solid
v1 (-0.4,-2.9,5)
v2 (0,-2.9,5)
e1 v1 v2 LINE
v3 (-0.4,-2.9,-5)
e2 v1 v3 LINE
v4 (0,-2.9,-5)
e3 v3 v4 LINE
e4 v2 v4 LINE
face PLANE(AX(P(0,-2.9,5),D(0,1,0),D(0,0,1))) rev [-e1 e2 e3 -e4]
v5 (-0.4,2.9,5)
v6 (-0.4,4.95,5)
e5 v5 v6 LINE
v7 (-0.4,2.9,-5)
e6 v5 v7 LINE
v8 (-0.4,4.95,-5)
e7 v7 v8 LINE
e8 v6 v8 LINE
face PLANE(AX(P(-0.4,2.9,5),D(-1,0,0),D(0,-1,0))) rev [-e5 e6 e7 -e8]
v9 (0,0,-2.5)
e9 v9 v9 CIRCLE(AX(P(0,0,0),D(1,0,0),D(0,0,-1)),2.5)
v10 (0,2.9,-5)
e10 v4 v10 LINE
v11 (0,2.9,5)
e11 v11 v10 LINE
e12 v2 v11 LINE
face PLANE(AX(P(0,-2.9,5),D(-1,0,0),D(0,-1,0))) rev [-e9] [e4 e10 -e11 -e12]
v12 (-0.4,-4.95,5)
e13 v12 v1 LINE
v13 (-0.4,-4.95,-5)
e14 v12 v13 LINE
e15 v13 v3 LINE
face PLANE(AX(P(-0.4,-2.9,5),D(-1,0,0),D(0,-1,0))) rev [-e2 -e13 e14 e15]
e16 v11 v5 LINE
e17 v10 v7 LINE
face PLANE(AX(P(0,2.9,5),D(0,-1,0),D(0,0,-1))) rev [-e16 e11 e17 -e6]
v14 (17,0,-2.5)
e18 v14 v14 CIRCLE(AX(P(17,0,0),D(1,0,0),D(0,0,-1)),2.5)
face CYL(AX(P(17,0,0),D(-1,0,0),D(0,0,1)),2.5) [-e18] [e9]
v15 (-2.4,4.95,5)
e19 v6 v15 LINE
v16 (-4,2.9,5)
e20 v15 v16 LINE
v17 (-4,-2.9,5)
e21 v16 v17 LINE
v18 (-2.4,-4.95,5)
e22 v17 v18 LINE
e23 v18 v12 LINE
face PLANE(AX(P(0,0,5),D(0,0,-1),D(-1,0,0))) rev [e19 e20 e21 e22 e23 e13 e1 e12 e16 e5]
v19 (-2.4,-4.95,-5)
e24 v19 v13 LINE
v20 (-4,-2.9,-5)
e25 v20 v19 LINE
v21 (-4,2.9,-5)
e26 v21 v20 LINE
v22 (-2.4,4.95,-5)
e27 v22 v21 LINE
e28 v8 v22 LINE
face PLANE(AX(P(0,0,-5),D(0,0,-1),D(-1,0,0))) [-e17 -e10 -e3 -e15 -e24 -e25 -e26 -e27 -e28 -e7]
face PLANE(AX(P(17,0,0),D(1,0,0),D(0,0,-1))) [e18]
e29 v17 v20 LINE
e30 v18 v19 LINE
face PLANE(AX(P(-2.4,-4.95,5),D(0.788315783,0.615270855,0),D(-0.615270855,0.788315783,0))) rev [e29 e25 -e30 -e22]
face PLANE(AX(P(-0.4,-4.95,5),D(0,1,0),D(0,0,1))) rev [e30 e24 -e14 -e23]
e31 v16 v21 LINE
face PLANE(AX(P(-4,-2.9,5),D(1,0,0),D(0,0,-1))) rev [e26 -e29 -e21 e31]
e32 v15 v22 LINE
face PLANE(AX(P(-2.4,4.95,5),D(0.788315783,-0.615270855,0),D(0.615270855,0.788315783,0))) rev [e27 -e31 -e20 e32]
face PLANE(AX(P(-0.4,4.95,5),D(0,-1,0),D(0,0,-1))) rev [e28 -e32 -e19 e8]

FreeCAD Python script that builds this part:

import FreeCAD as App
import Part
import Sketcher

V = App.Vector
Q = App.Units.Quantity


def add_polygon(sketch, points):
    """Adds a closed chain of lines whose ends are joined by coincident constraints."""
    first, n = sketch.GeometryCount, len(points)
    for a, b in zip(points, points[1:] + points[:1]):
        sketch.addGeometry(Part.LineSegment(App.Vector(*a, 0), App.Vector(*b, 0)), False)
    for i in range(n):
        sketch.addConstraint(Sketcher.Constraint("Coincident", first + i, 2, first + (i + 1) % n, 1))

doc = App.newDocument("Part")
body = doc.addObject("PartDesign::Body", "Body")

# Sketch on XY plane
sketch1 = body.newObject("Sketcher::SketchObject", "Sketch")
sketch1.AttachmentSupport = (doc.getObject("XY_Plane"), [""])
sketch1.MapMode = "FlatFace"
add_polygon(sketch1, [(0, -2.9), (0, 2.9), (-0.4, 2.9), (-0.4, 4.95), (-2.4, 4.95), (-4, 2.9), (-4, -2.9), (-2.4, -4.95), (-0.4, -4.95), (-0.4, -2.9)])  # lines 0-9
sketch1.addConstraint([
    Sketcher.Constraint("Vertical", 0),
    Sketcher.Constraint("Horizontal", 1),
    Sketcher.Constraint("Vertical", 2),
    Sketcher.Constraint("Horizontal", 3),
    Sketcher.Constraint("Vertical", 5),
    Sketcher.Constraint("Horizontal", 7),
    Sketcher.Constraint("Vertical", 8),
    Sketcher.Constraint("Horizontal", 9),
    Sketcher.Constraint("Symmetric", 0, 2, 9, 2, -1, 1),
    Sketcher.Constraint("Symmetric", 3, 2, 6, 2, -1),
    Sketcher.Constraint("Horizontal", 1, 2, 4, 2),
    Sketcher.Constraint("Horizontal", 5, 2, 8, 2),
    Sketcher.Constraint("Vertical", 2, 2, 7, 2),
    Sketcher.Constraint("DistanceX", 3, 2, 3, 1, Q("2 mm")),
    Sketcher.Constraint("DistanceX", 1, 2, 1, 1, Q("0.4 mm")),
    Sketcher.Constraint("DistanceY", 0, 1, 0, 2, Q("5.8 mm")),
    Sketcher.Constraint("DistanceX", 4, 2, -1, 1, Q("4 mm")),
    Sketcher.Constraint("DistanceY", 2, 1, 2, 2, Q("2.05 mm")),
])
pad1 = body.newObject("PartDesign::Pad", "Pad")
pad1.Profile = sketch1
pad1.Length = 10
pad1.Midplane = True

# Sketch on YZ plane
sketch2 = body.newObject("Sketcher::SketchObject", "Sketch001")
sketch2.AttachmentSupport = (doc.getObject("YZ_Plane"), [""])
sketch2.MapMode = "FlatFace"
sketch2.addGeometry(Part.Circle(V(0, 0, 0), V(0, 0, 1), 2.5), False)
sketch2.addConstraint([
    Sketcher.Constraint("Coincident", 0, 3, -1, 1),
    Sketcher.Constraint("Diameter", 0, Q("5 mm")),
])
pad2 = body.newObject("PartDesign::Pad", "Pad001")
pad2.Profile = sketch2
pad2.Length = 17

doc.recompute()
